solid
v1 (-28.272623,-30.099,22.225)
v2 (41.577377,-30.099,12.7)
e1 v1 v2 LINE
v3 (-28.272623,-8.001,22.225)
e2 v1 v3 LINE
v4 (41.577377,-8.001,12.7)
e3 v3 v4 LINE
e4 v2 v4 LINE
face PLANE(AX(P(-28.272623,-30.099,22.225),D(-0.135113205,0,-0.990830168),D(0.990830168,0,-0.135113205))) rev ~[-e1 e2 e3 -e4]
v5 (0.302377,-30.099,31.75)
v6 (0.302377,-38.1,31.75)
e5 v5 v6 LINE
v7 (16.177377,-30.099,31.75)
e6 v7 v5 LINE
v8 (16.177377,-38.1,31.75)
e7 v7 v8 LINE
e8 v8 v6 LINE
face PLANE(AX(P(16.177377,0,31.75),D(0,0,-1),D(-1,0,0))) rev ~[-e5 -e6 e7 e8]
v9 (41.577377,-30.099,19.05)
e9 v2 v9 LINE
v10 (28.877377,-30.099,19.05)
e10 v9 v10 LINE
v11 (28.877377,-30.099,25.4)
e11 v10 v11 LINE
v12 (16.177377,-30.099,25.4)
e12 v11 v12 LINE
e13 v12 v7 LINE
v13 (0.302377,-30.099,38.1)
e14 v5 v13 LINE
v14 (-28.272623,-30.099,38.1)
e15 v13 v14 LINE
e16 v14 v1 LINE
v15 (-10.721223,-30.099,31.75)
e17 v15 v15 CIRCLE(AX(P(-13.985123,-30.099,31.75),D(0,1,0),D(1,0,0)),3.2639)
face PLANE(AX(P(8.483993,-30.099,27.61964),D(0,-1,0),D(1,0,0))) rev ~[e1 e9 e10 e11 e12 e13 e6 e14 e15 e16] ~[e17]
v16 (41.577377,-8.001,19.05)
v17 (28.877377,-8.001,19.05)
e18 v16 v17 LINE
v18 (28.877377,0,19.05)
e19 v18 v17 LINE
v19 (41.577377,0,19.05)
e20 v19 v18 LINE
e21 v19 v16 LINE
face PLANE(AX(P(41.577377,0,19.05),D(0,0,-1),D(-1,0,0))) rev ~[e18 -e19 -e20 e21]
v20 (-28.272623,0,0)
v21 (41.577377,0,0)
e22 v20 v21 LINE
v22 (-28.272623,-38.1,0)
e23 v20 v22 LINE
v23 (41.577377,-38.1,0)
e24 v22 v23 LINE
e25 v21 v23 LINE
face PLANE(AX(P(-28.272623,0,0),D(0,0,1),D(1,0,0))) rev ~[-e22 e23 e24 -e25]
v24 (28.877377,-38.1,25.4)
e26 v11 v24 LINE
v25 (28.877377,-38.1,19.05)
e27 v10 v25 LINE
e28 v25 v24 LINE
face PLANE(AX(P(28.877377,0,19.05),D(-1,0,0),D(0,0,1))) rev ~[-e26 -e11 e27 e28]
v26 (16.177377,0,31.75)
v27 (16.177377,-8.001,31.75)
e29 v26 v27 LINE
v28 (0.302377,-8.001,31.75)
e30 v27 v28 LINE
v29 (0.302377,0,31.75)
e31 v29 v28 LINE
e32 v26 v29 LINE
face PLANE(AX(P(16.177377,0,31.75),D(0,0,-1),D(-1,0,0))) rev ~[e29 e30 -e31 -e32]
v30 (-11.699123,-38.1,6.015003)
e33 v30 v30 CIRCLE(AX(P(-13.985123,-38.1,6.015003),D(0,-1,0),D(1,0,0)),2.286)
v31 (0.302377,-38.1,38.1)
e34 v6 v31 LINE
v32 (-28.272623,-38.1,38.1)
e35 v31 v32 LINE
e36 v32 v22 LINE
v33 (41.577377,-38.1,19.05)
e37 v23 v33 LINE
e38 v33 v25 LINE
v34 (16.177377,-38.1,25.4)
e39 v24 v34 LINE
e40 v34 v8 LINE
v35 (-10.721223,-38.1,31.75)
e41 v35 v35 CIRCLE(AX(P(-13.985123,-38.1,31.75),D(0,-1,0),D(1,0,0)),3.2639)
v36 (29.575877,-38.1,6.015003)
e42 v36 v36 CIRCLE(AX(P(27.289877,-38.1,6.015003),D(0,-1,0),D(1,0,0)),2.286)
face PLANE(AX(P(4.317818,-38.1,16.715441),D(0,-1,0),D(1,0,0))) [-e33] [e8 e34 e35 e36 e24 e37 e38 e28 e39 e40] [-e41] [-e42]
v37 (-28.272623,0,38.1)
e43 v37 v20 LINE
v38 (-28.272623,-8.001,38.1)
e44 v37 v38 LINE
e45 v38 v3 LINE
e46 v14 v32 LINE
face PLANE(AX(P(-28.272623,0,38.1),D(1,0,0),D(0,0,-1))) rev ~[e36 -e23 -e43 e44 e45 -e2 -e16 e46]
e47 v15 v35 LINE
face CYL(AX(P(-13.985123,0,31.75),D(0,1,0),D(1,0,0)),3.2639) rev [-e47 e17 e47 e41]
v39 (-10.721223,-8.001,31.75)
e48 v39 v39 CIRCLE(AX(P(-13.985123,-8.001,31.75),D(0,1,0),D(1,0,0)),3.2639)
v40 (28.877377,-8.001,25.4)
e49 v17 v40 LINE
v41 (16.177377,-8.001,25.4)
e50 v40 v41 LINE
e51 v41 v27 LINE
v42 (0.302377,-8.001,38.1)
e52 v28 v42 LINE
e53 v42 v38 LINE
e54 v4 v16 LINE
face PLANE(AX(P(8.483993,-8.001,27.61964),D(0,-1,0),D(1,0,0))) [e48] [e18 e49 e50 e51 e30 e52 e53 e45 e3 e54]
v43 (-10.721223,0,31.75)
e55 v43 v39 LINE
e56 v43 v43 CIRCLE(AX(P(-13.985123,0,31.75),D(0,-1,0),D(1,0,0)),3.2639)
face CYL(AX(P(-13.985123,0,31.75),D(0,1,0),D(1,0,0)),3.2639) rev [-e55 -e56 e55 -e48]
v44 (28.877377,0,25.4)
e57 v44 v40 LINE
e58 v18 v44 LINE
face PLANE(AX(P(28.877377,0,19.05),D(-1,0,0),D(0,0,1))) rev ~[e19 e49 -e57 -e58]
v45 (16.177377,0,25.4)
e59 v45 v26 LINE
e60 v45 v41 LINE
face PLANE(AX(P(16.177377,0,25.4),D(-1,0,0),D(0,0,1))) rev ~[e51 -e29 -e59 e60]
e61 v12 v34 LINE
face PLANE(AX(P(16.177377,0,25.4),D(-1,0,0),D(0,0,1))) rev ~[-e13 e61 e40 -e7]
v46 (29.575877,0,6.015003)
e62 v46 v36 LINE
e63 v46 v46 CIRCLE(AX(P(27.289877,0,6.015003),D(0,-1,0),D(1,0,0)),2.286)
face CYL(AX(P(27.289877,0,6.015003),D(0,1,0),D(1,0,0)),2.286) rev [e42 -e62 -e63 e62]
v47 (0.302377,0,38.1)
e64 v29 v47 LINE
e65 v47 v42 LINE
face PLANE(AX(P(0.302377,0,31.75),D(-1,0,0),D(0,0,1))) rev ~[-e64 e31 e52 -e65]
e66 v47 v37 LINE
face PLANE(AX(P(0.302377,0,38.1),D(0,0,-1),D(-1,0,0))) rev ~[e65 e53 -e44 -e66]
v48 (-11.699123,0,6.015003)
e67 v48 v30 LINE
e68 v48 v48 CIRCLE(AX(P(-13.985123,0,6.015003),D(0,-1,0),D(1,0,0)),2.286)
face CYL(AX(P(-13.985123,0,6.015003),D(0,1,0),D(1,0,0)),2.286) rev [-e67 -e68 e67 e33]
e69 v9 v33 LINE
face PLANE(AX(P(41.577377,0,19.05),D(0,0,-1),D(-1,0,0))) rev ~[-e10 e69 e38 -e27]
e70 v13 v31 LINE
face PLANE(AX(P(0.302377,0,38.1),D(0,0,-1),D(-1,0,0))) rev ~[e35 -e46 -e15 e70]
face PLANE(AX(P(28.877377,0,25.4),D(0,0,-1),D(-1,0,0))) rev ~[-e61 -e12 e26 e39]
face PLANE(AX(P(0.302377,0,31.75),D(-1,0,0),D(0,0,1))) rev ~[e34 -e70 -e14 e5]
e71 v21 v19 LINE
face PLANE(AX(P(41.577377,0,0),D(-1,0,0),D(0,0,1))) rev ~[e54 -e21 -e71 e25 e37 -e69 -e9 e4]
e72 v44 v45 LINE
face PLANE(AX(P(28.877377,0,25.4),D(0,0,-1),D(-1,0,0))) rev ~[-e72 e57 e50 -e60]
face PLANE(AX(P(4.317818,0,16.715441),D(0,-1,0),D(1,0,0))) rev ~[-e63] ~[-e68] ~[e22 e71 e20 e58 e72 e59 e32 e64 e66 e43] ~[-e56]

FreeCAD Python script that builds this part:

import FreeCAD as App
import Part
import Sketcher
from FreeCAD import Vector
Q = App.Units.Quantity

doc = App.newDocument("Part")
params = doc.addObject("Spreadsheet::Sheet", "Params")
for row, (alias, value) in enumerate([
    ("sketch1_diameter", "0.18 in"),
    ("sketch1_diameter2", "0.257 in"),
    ("sketch1_width", "0.5 in"),
    ("sketch1_height", "1.5 in"),
    ("sketch1_width2", "2.75 in"),
    ("pad1_length", "1.5 in"),
    ("sketch2_height", "1 in"),
    ("sketch2_width", "2.75 in"),
    ("sketch2_height2", "0.625 in"),
    ("pocket1_length", "0.87 in"),
], start=1):
    params.set(f"A{row}", alias)
    params.set(f"B{row}", "=" + value)
    params.setAlias(f"B{row}", alias)

body = doc.addObject("PartDesign::Body", "Body")

sketch1 = body.newObject("Sketcher::SketchObject", "Sketch")
sketch1.AttachmentSupport = (doc.getObject("XZ_Plane"), [""])
sketch1.MapMode = "FlatFace"
sketch1.addGeometry([
    Part.LineSegment(Vector(-28.3, 0, 0), Vector(41.6, 0, 0)),
    Part.LineSegment(Vector(41.6, 0, 0), Vector(41.6, 19.1, 0)),
    Part.LineSegment(Vector(41.6, 19.1, 0), Vector(28.9, 19.1, 0)),
    Part.LineSegment(Vector(28.9, 19.1, 0), Vector(28.9, 25.4, 0)),
    Part.LineSegment(Vector(28.9, 25.4, 0), Vector(16.2, 25.4, 0)),
    Part.LineSegment(Vector(16.2, 25.4, 0), Vector(16.2, 31.8, 0)),
    Part.LineSegment(Vector(16.2, 31.8, 0), Vector(0.3, 31.8, 0)),
    Part.LineSegment(Vector(0.3, 31.8, 0), Vector(0.3, 38.1, 0)),
    Part.LineSegment(Vector(0.3, 38.1, 0), Vector(-28.3, 38.1, 0)),
    Part.LineSegment(Vector(-28.3, 38.1, 0), Vector(-28.3, 0, 0)),
    Part.Circle(Vector(-14, 6, 0), Vector(0, 0, 1), 2.3),
    Part.Circle(Vector(27.3, 6, 0), Vector(0, 0, 1), 2.3),
    Part.Circle(Vector(-14, 31.8, 0), Vector(0, 0, 1), 3.3),
], False)
sketch1.addConstraint([
    Sketcher.Constraint("Coincident", 0, 2, 1, 1),
    Sketcher.Constraint("Coincident", 1, 2, 2, 1),
    Sketcher.Constraint("Coincident", 2, 2, 3, 1),
    Sketcher.Constraint("Coincident", 3, 2, 4, 1),
    Sketcher.Constraint("Coincident", 4, 2, 5, 1),
    Sketcher.Constraint("Coincident", 5, 2, 6, 1),
    Sketcher.Constraint("Coincident", 6, 2, 7, 1),
    Sketcher.Constraint("Coincident", 7, 2, 8, 1),
    Sketcher.Constraint("Coincident", 8, 2, 9, 1),
    Sketcher.Constraint("Coincident", 9, 2, 0, 1),
    Sketcher.Constraint("Horizontal", 0),
    Sketcher.Constraint("Vertical", 1),
    Sketcher.Constraint("Horizontal", 2),
    Sketcher.Constraint("Vertical", 3),
    Sketcher.Constraint("Horizontal", 4),
    Sketcher.Constraint("Vertical", 5),
    Sketcher.Constraint("Horizontal", 6),
    Sketcher.Constraint("Vertical", 7),
    Sketcher.Constraint("Horizontal", 8),
    Sketcher.Constraint("Vertical", 9),
    Sketcher.Constraint("Equal", 10, 11),
    Sketcher.Constraint("PointOnObject", 0, 2, -1),
    Sketcher.Constraint("Horizontal", 10, 3, 11, 3),
    Sketcher.Constraint("Horizontal", 12, 3, 5, 2),
    Sketcher.Constraint("Vertical", 10, 3, 12, 3),
    Sketcher.Constraint("Equal", 2, 4),
    Sketcher.Constraint("Equal", 3, 5),
    Sketcher.Constraint("Equal", 5, 7),
    Sketcher.Constraint("Diameter", 10, Q("0.18 in")),
    Sketcher.Constraint("Diameter", 12, Q("0.257 in")),
    Sketcher.Constraint("DistanceX", 2, 2, 2, 1, Q("0.5 in")),
    Sketcher.Constraint("DistanceY", 9, 2, 9, 1, Q("1.5 in")),
    Sketcher.Constraint("DistanceY", -1, 1, 3, 2, Q("1 in")),
    Sketcher.Constraint("DistanceX", 0, 1, 0, 2, Q("2.75 in")),
    Sketcher.Constraint("DistanceX", 6, 2, 6, 1, Q("0.625 in")),
    Sketcher.Constraint("DistanceX", 10, 3, 11, 3, Q("1.625 in")),
    Sketcher.Constraint("DistanceX", 11, 3, 0, 2, Q("0.5625 in")),
    Sketcher.Constraint("DistanceX", 10, 3, -1, 1, Q("13.985123 mm")),
    Sketcher.Constraint("DistanceY", -1, 1, 10, 3, Q("6.015003 mm")),
])
sketch1.setExpression("Constraints[28]", "Params.sketch1_diameter")
sketch1.setExpression("Constraints[29]", "Params.sketch1_diameter2")
sketch1.setExpression("Constraints[30]", "Params.sketch1_width")
sketch1.setExpression("Constraints[31]", "Params.sketch1_height")
sketch1.setExpression("Constraints[33]", "Params.sketch1_width2")
pad1 = body.newObject("PartDesign::Pad", "Pad")
pad1.Profile = sketch1
pad1.setExpression("Length", "Params.pad1_length")

sketch2 = body.newObject("Sketcher::SketchObject", "Sketch001")
sketch2.AttachmentSupport = (doc.getObject("XZ_Plane"), [""])
sketch2.MapMode = "FlatFace"
sketch2.AttachmentOffset = App.Placement(Vector(0, 0, 1.185 * 25.4), App.Rotation())
sketch2.addGeometry([
    Part.LineSegment(Vector(-28, 38, 0), Vector(-28, 22, 0)),
    Part.LineSegment(Vector(-28, 22, 0), Vector(42, 13, 0)),
    Part.LineSegment(Vector(42, 13, 0), Vector(42, 38, 0)),
    Part.LineSegment(Vector(42, 38, 0), Vector(-28, 38, 0)),
], False)
sketch2.addConstraint([
    Sketcher.Constraint("Coincident", 0, 2, 1, 1),
    Sketcher.Constraint("Coincident", 1, 2, 2, 1),
    Sketcher.Constraint("Coincident", 2, 2, 3, 1),
    Sketcher.Constraint("Coincident", 3, 2, 0, 1),
    Sketcher.Constraint("Vertical", 0),
    Sketcher.Constraint("Vertical", 2),
    Sketcher.Constraint("Horizontal", 3),
    Sketcher.Constraint("DistanceY", 2, 1, 2, 2, Q("1 in")),
    Sketcher.Constraint("DistanceX", 3, 2, 3, 1, Q("2.75 in")),
    Sketcher.Constraint("DistanceY", -1, 1, 1, 2, Q("0.5 in")),
    Sketcher.Constraint("DistanceY", 0, 2, 0, 1, Q("0.625 in")),
    Sketcher.Constraint("DistanceX", 0, 2, -1, 1, Q("28.272623 mm")),
])
sketch2.setExpression("Constraints[7]", "Params.sketch2_height")
sketch2.setExpression("Constraints[8]", "Params.sketch2_width")
sketch2.setExpression("Constraints[10]", "Params.sketch2_height2")
pocket1 = body.newObject("PartDesign::Pocket", "Pocket")
pocket1.Profile = sketch2
pocket1.setExpression("Length", "Params.pocket1_length")

doc.recompute()
